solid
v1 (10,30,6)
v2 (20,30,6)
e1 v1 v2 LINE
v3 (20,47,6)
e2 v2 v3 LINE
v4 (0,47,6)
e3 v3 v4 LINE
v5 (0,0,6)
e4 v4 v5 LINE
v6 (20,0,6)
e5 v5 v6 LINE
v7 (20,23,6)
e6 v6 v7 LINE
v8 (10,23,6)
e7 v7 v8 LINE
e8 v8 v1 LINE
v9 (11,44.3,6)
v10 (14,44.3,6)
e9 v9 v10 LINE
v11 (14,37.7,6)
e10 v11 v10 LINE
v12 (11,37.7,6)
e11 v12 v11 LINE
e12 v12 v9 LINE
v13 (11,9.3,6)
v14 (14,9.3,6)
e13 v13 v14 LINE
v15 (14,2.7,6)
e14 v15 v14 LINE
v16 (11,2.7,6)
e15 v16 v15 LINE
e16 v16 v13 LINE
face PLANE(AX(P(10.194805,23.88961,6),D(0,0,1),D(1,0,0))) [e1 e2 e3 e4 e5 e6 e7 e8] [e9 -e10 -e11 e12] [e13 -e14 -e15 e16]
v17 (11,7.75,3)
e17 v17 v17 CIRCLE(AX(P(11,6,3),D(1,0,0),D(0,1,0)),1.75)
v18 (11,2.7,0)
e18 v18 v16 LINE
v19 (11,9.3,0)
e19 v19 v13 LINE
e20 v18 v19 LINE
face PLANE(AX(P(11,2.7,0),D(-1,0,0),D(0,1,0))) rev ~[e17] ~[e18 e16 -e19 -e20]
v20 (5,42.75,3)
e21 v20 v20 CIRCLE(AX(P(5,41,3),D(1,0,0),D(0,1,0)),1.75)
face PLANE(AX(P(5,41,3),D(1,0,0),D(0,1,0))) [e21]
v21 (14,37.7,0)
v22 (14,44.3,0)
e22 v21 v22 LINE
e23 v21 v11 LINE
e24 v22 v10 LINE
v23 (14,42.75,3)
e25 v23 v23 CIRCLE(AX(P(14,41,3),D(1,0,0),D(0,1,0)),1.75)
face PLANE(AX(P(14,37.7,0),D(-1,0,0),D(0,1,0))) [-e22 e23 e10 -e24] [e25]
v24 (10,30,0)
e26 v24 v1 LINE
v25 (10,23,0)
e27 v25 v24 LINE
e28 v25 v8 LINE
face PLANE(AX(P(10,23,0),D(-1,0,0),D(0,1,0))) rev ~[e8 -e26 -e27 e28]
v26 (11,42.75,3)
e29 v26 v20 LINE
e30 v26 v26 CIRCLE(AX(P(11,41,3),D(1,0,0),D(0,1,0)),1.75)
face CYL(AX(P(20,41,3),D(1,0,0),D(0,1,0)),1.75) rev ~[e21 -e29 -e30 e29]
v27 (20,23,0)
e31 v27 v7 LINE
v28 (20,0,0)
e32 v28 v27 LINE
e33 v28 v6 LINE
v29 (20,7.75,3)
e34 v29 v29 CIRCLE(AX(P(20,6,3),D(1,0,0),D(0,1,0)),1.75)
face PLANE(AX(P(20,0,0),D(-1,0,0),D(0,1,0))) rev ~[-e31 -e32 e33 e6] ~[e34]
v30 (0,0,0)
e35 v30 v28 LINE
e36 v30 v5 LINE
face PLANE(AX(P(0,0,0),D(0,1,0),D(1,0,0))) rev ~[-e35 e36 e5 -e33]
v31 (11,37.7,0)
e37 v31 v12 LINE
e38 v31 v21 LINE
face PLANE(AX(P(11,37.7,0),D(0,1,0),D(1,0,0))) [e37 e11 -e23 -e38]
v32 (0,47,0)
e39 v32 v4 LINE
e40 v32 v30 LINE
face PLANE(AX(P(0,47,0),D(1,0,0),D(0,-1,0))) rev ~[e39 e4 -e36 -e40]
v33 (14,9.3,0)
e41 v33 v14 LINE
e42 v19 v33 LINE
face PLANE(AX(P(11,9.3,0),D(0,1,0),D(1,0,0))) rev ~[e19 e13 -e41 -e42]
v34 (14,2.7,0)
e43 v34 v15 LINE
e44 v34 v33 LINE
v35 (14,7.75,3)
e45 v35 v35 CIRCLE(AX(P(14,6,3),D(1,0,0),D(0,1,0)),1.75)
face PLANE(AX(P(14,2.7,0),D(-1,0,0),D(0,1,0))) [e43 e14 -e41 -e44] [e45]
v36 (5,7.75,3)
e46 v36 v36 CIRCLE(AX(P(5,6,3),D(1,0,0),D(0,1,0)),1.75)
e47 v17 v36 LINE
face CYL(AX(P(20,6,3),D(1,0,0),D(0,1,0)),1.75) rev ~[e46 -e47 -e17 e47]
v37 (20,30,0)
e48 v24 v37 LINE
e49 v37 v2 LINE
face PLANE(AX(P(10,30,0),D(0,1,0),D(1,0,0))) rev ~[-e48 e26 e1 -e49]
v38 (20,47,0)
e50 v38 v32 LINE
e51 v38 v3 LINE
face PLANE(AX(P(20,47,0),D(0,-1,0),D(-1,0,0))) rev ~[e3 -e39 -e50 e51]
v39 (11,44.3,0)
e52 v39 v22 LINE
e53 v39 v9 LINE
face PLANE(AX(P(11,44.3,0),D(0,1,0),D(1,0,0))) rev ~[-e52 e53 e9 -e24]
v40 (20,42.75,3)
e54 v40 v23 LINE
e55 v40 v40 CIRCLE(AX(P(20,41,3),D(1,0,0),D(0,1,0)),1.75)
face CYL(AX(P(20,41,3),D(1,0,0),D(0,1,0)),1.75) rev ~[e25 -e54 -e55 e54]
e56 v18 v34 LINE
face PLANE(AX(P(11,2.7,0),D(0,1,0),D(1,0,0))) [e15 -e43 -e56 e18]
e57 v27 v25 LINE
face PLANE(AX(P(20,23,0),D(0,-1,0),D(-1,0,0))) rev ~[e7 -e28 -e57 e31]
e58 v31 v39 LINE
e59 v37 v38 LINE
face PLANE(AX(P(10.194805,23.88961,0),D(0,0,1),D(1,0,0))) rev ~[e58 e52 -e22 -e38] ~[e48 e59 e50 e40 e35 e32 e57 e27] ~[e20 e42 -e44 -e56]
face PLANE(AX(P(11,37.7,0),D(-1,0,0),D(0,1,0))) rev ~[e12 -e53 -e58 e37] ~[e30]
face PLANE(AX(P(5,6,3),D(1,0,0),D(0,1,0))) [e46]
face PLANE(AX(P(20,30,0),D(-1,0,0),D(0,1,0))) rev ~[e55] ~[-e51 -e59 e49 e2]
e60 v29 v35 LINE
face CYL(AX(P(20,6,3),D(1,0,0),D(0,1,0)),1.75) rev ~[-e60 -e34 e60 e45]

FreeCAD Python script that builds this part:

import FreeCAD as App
import Part
import Sketcher
from FreeCAD import Vector

doc = App.newDocument("Part")
params = doc.addObject("Spreadsheet::Sheet", "Params")
for row, (alias, value) in enumerate([
    ("sketch1_width", "20 mm"),
    ("sketch1_width2", "10 mm"),
    ("sketch1_width3", "3 mm"),
    ("sketch1_height", "47 mm"),
    ("sketch1_height2", "23 mm"),
    ("pad1_length", "6 mm"),
    ("sketch2_diameter", "3.5 mm"),
    ("pocket1_length", "15 mm"),
], start=1):
    params.set(f"A{row}", alias)
    params.set(f"B{row}", "=" + value)
    params.setAlias(f"B{row}", alias)

body = doc.addObject("PartDesign::Body", "Body")

# Sketch on XY plane
sketch1 = body.newObject("Sketcher::SketchObject", "Sketch")
sketch1.AttachmentSupport = (doc.getObject("XY_Plane"), [""])
sketch1.MapMode = "FlatFace"
sketch1.addGeometry([
    Part.LineSegment(Vector(0, 47, 0), Vector(0, 0, 0)),  # 0
    Part.LineSegment(Vector(0, 0, 0), Vector(20, 0, 0)),  # 1
    Part.LineSegment(Vector(20, 0, 0), Vector(20, 23, 0)),  # 2
    Part.LineSegment(Vector(20, 23, 0), Vector(10, 23, 0)),  # 3
    Part.LineSegment(Vector(10, 23, 0), Vector(10, 30, 0)),  # 4
    Part.LineSegment(Vector(10, 30, 0), Vector(20, 30, 0)),  # 5
    Part.LineSegment(Vector(20, 30, 0), Vector(20, 47, 0)),  # 6
    Part.LineSegment(Vector(20, 47, 0), Vector(0, 47, 0)),  # 7
    Part.LineSegment(Vector(14, 2.7, 0), Vector(11, 2.7, 0)),  # 8
    Part.LineSegment(Vector(11, 2.7, 0), Vector(11, 9.3, 0)),  # 9
    Part.LineSegment(Vector(11, 9.3, 0), Vector(14, 9.3, 0)),  # 10
    Part.LineSegment(Vector(14, 9.3, 0), Vector(14, 2.7, 0)),  # 11
    Part.LineSegment(Vector(14, 37.7, 0), Vector(11, 37.7, 0)),  # 12
    Part.LineSegment(Vector(11, 37.7, 0), Vector(11, 44.3, 0)),  # 13
    Part.LineSegment(Vector(11, 44.3, 0), Vector(14, 44.3, 0)),  # 14
    Part.LineSegment(Vector(14, 44.3, 0), Vector(14, 37.7, 0)),  # 15
], False)
sketch1.addConstraint([
    Sketcher.Constraint("Coincident", 0, 2, 1, 1),
    Sketcher.Constraint("Coincident", 1, 2, 2, 1),
    Sketcher.Constraint("Coincident", 2, 2, 3, 1),
    Sketcher.Constraint("Coincident", 3, 2, 4, 1),
    Sketcher.Constraint("Coincident", 4, 2, 5, 1),
    Sketcher.Constraint("Coincident", 5, 2, 6, 1),
    Sketcher.Constraint("Coincident", 6, 2, 7, 1),
    Sketcher.Constraint("Coincident", 7, 2, 0, 1),
    Sketcher.Constraint("Coincident", 8, 2, 9, 1),
    Sketcher.Constraint("Coincident", 9, 2, 10, 1),
    Sketcher.Constraint("Coincident", 10, 2, 11, 1),
    Sketcher.Constraint("Coincident", 11, 2, 8, 1),
    Sketcher.Constraint("Coincident", 12, 2, 13, 1),
    Sketcher.Constraint("Coincident", 13, 2, 14, 1),
    Sketcher.Constraint("Coincident", 14, 2, 15, 1),
    Sketcher.Constraint("Coincident", 15, 2, 12, 1),
    Sketcher.Constraint("Vertical", 0),
    Sketcher.Constraint("Horizontal", 1),
    Sketcher.Constraint("Vertical", 2),
    Sketcher.Constraint("Horizontal", 3),
    Sketcher.Constraint("Vertical", 4),
    Sketcher.Constraint("Horizontal", 5),
    Sketcher.Constraint("Vertical", 6),
    Sketcher.Constraint("Horizontal", 7),
    Sketcher.Constraint("Horizontal", 8),
    Sketcher.Constraint("Vertical", 9),
    Sketcher.Constraint("Horizontal", 10),
    Sketcher.Constraint("Vertical", 11),
    Sketcher.Constraint("Horizontal", 12),
    Sketcher.Constraint("Vertical", 13),
    Sketcher.Constraint("Horizontal", 14),
    Sketcher.Constraint("Vertical", 15),
    Sketcher.Constraint("Coincident", 0, 2, -1, 1),
    Sketcher.Constraint("Vertical", 2, 2, 5, 2),
    Sketcher.Constraint("Vertical", 9, 2, 12, 2),
    Sketcher.Constraint("Vertical", 11, 2, 14, 2),
    Sketcher.Constraint("Equal", 11, 13),
    Sketcher.Constraint("DistanceX", 1, 1, 1, 2, 20.0),
    Sketcher.Constraint("DistanceX", 3, 2, 3, 1, 10.0),
    Sketcher.Constraint("DistanceX", 8, 2, 8, 1, 3.0),
    Sketcher.Constraint("DistanceY", 0, 2, 0, 1, 47.0),
    Sketcher.Constraint("DistanceY", 2, 1, 2, 2, 23.0),
    Sketcher.Constraint("DistanceY", 4, 1, 4, 2, 7.0),
    Sketcher.Constraint("DistanceY", 9, 1, 9, 2, 6.6),
    Sketcher.Constraint("DistanceX", -1, 1, 8, 2, 11.0),
    Sketcher.Constraint("DistanceY", -1, 1, 8, 2, 2.7),
    Sketcher.Constraint("DistanceY", -1, 1, 12, 2, 37.7),
])
sketch1.setExpression("Constraints[37]", "Params.sketch1_width")
sketch1.setExpression("Constraints[38]", "Params.sketch1_width2")
sketch1.setExpression("Constraints[39]", "Params.sketch1_width3")
sketch1.setExpression("Constraints[40]", "Params.sketch1_height")
sketch1.setExpression("Constraints[41]", "Params.sketch1_height2")
pad1 = body.newObject("PartDesign::Pad", "Pad")
pad1.Profile = sketch1
pad1.setExpression("Length", "Params.pad1_length")

# Sketch on YZ plane
sketch2 = body.newObject("Sketcher::SketchObject", "Sketch001")
sketch2.AttachmentSupport = (doc.getObject("YZ_Plane"), [""])
sketch2.MapMode = "FlatFace"
sketch2.AttachmentOffset = App.Placement(Vector(0, 0, 20), App.Rotation())
sketch2.addGeometry([
    Part.Circle(Vector(41, 3, 0), Vector(0, 0, 1), 1.75),
    Part.Circle(Vector(6, 3, 0), Vector(0, 0, 1), 1.75),
], False)
sketch2.addConstraint([
    Sketcher.Constraint("Equal", 0, 1),
    Sketcher.Constraint("Horizontal", 0, 3, 1, 3),
    Sketcher.Constraint("Diameter", 0, 3.5),
    Sketcher.Constraint("DistanceX", -1, 1, 0, 3, 41.0),
    Sketcher.Constraint("DistanceY", -1, 1, 0, 3, 3.0),
    Sketcher.Constraint("DistanceX", -1, 1, 1, 3, 6.0),
])
sketch2.setExpression("Constraints[2]", "Params.sketch2_diameter")
pocket1 = body.newObject("PartDesign::Pocket", "Pocket")
pocket1.Profile = sketch2
pocket1.setExpression("Length", "Params.pocket1_length")

doc.recompute()
